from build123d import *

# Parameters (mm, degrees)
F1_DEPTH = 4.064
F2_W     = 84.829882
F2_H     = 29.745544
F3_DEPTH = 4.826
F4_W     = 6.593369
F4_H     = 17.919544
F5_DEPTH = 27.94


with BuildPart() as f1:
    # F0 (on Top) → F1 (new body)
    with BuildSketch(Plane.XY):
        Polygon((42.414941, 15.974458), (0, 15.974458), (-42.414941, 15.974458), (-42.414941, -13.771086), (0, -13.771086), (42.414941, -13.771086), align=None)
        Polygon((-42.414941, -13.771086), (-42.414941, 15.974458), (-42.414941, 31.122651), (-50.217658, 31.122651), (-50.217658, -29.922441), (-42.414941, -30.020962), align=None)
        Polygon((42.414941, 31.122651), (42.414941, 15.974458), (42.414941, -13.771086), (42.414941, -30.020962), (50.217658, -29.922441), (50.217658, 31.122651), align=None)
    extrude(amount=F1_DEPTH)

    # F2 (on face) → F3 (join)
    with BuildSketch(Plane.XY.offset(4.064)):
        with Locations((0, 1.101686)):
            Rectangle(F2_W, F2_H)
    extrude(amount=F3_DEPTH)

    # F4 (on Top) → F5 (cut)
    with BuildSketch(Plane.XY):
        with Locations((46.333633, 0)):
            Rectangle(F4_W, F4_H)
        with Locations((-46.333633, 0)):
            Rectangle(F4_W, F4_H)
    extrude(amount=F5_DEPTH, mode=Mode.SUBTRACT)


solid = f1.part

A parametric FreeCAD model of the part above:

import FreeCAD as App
import Part
import Sketcher

V = App.Vector
Q = App.Units.Quantity


def add_polygon(sketch, points):
    """Adds a closed chain of lines whose ends are joined by coincident constraints."""
    first, n = sketch.GeometryCount, len(points)
    for a, b in zip(points, points[1:] + points[:1]):
        sketch.addGeometry(Part.LineSegment(App.Vector(*a, 0), App.Vector(*b, 0)), False)
    for i in range(n):
        sketch.addConstraint(Sketcher.Constraint("Coincident", first + i, 2, first + (i + 1) % n, 1))

doc = App.newDocument("Part")
body = doc.addObject("PartDesign::Body", "Body")

# Sketch on XY plane
sketch1 = doc.addObject("Sketcher::SketchObject", "Sketch")
body.addObject(sketch1)
sketch1.AttachmentSupport = (doc.XY_Plane, [""])
sketch1.MapMode = "FlatFace"
add_polygon(sketch1, [(42.414941, 15.974458), (-42.414941, 15.974458), (-42.414941, 31.122651), (-50.217658, 31.122651), (-50.217658, -29.922441), (-42.414941, -30.020962), (-42.414941, -13.771086), (42.414941, -13.771086), (42.414941, -30.020962), (50.217658, -29.922441), (50.217658, 31.122651), (42.414941, 31.122651)])  # lines 0-11
sketch1.addConstraint([
    Sketcher.Constraint("Horizontal", 0),
    Sketcher.Constraint("Vertical", 1),
    Sketcher.Constraint("Horizontal", 2),
    Sketcher.Constraint("Vertical", 3),
    Sketcher.Constraint("Vertical", 5),
    Sketcher.Constraint("Horizontal", 6),
    Sketcher.Constraint("Vertical", 7),
    Sketcher.Constraint("Vertical", 9),
    Sketcher.Constraint("Horizontal", 10),
    Sketcher.Constraint("Vertical", 11),
    Sketcher.Constraint("Symmetric", 4, 2, 7, 2, -2),
    Sketcher.Constraint("Symmetric", 3, 2, 8, 2, -2),
    Sketcher.Constraint("Symmetric", 1, 2, 10, 2, -2),
    Sketcher.Constraint("Vertical", 1, 2, 4, 2),
    Sketcher.Constraint("DistanceX", 0, 2, 0, 1, 84.829882),
    Sketcher.Constraint("DistanceY", 3, 2, 3, 1, 61.045092),
    Sketcher.Constraint("DistanceY", 3, 2, 0, 2, 45.896899),
    Sketcher.Constraint("DistanceX", 3, 2, 6, 2, 92.632599),
    Sketcher.Constraint("Distance", 4, 7.803339),
    Sketcher.Constraint("DistanceY", 5, 1, 5, 2, 16.249876),
    Sketcher.Constraint("DistanceY", -1, 1, 1, 2, 31.122651),
])
pad1 = doc.addObject("PartDesign::Pad", "Pad")
body.addObject(pad1)
pad1.Profile = sketch1
pad1.Length = Q("0.16 in")

# Sketch on XY plane
sketch2 = doc.addObject("Sketcher::SketchObject", "Sketch001")
body.addObject(sketch2)
sketch2.AttachmentSupport = (doc.XY_Plane, [""])
sketch2.MapMode = "FlatFace"
sketch2.AttachmentOffset = App.Placement(V(0, 0, 0.16 * 25.4), App.Rotation())
add_polygon(sketch2, [(-42.414941, 15.974458), (-42.414941, -13.771086), (42.414941, -13.771086), (42.414941, 15.974458)])  # lines 0-3
sketch2.addConstraint([
    Sketcher.Constraint("Vertical", 0),
    Sketcher.Constraint("Horizontal", 1),
    Sketcher.Constraint("Vertical", 2),
    Sketcher.Constraint("Horizontal", 3),
    Sketcher.Constraint("DistanceX", 1, 1, 1, 2, 84.829882),
    Sketcher.Constraint("DistanceY", 0, 2, 0, 1, 29.745544),
    Sketcher.Constraint("DistanceX", 0, 2, -1, 1, 42.414941),
    Sketcher.Constraint("DistanceY", 0, 2, -1, 1, 13.771086),
])
pad2 = doc.addObject("PartDesign::Pad", "Pad001")
body.addObject(pad2)
pad2.Profile = sketch2
pad2.Length = Q("0.19 in")

# Sketch on XY plane
sketch3 = doc.addObject("Sketcher::SketchObject", "Sketch002")
body.addObject(sketch3)
sketch3.AttachmentSupport = (doc.XY_Plane, [""])
sketch3.MapMode = "FlatFace"
add_polygon(sketch3, [(43.036949, 8.959772), (43.036949, -8.959772), (49.630317, -8.959772), (49.630317, 8.959772)])  # lines 0-3
add_polygon(sketch3, [(-49.630317, 8.959772), (-49.630317, -8.959772), (-43.036949, -8.959772), (-43.036949, 8.959772)])  # lines 4-7
sketch3.addConstraint([
    Sketcher.Constraint("Vertical", 0),
    Sketcher.Constraint("Horizontal", 1),
    Sketcher.Constraint("Vertical", 2),
    Sketcher.Constraint("Horizontal", 3),
    Sketcher.Constraint("Vertical", 4),
    Sketcher.Constraint("Horizontal", 5),
    Sketcher.Constraint("Vertical", 6),
    Sketcher.Constraint("Horizontal", 7),
    Sketcher.Constraint("Symmetric", 2, 2, 4, 2, -1, 1),
    Sketcher.Constraint("Symmetric", 0, 2, 6, 2, -1, 1),
    Sketcher.Constraint("Horizontal", 1, 2, 4, 2),
    Sketcher.Constraint("DistanceX", 1, 1, 1, 2, 6.593369),
    Sketcher.Constraint("DistanceY", 0, 2, 0, 1, 17.919544),
    Sketcher.Constraint("DistanceX", -1, 1, 0, 2, 43.036949),
])
pocket1 = doc.addObject("PartDesign::Pocket", "Pocket")
body.addObject(pocket1)
pocket1.Profile = sketch3
pocket1.Length = Q("1.1 in")
pocket1.Reversed = True

doc.recompute()
